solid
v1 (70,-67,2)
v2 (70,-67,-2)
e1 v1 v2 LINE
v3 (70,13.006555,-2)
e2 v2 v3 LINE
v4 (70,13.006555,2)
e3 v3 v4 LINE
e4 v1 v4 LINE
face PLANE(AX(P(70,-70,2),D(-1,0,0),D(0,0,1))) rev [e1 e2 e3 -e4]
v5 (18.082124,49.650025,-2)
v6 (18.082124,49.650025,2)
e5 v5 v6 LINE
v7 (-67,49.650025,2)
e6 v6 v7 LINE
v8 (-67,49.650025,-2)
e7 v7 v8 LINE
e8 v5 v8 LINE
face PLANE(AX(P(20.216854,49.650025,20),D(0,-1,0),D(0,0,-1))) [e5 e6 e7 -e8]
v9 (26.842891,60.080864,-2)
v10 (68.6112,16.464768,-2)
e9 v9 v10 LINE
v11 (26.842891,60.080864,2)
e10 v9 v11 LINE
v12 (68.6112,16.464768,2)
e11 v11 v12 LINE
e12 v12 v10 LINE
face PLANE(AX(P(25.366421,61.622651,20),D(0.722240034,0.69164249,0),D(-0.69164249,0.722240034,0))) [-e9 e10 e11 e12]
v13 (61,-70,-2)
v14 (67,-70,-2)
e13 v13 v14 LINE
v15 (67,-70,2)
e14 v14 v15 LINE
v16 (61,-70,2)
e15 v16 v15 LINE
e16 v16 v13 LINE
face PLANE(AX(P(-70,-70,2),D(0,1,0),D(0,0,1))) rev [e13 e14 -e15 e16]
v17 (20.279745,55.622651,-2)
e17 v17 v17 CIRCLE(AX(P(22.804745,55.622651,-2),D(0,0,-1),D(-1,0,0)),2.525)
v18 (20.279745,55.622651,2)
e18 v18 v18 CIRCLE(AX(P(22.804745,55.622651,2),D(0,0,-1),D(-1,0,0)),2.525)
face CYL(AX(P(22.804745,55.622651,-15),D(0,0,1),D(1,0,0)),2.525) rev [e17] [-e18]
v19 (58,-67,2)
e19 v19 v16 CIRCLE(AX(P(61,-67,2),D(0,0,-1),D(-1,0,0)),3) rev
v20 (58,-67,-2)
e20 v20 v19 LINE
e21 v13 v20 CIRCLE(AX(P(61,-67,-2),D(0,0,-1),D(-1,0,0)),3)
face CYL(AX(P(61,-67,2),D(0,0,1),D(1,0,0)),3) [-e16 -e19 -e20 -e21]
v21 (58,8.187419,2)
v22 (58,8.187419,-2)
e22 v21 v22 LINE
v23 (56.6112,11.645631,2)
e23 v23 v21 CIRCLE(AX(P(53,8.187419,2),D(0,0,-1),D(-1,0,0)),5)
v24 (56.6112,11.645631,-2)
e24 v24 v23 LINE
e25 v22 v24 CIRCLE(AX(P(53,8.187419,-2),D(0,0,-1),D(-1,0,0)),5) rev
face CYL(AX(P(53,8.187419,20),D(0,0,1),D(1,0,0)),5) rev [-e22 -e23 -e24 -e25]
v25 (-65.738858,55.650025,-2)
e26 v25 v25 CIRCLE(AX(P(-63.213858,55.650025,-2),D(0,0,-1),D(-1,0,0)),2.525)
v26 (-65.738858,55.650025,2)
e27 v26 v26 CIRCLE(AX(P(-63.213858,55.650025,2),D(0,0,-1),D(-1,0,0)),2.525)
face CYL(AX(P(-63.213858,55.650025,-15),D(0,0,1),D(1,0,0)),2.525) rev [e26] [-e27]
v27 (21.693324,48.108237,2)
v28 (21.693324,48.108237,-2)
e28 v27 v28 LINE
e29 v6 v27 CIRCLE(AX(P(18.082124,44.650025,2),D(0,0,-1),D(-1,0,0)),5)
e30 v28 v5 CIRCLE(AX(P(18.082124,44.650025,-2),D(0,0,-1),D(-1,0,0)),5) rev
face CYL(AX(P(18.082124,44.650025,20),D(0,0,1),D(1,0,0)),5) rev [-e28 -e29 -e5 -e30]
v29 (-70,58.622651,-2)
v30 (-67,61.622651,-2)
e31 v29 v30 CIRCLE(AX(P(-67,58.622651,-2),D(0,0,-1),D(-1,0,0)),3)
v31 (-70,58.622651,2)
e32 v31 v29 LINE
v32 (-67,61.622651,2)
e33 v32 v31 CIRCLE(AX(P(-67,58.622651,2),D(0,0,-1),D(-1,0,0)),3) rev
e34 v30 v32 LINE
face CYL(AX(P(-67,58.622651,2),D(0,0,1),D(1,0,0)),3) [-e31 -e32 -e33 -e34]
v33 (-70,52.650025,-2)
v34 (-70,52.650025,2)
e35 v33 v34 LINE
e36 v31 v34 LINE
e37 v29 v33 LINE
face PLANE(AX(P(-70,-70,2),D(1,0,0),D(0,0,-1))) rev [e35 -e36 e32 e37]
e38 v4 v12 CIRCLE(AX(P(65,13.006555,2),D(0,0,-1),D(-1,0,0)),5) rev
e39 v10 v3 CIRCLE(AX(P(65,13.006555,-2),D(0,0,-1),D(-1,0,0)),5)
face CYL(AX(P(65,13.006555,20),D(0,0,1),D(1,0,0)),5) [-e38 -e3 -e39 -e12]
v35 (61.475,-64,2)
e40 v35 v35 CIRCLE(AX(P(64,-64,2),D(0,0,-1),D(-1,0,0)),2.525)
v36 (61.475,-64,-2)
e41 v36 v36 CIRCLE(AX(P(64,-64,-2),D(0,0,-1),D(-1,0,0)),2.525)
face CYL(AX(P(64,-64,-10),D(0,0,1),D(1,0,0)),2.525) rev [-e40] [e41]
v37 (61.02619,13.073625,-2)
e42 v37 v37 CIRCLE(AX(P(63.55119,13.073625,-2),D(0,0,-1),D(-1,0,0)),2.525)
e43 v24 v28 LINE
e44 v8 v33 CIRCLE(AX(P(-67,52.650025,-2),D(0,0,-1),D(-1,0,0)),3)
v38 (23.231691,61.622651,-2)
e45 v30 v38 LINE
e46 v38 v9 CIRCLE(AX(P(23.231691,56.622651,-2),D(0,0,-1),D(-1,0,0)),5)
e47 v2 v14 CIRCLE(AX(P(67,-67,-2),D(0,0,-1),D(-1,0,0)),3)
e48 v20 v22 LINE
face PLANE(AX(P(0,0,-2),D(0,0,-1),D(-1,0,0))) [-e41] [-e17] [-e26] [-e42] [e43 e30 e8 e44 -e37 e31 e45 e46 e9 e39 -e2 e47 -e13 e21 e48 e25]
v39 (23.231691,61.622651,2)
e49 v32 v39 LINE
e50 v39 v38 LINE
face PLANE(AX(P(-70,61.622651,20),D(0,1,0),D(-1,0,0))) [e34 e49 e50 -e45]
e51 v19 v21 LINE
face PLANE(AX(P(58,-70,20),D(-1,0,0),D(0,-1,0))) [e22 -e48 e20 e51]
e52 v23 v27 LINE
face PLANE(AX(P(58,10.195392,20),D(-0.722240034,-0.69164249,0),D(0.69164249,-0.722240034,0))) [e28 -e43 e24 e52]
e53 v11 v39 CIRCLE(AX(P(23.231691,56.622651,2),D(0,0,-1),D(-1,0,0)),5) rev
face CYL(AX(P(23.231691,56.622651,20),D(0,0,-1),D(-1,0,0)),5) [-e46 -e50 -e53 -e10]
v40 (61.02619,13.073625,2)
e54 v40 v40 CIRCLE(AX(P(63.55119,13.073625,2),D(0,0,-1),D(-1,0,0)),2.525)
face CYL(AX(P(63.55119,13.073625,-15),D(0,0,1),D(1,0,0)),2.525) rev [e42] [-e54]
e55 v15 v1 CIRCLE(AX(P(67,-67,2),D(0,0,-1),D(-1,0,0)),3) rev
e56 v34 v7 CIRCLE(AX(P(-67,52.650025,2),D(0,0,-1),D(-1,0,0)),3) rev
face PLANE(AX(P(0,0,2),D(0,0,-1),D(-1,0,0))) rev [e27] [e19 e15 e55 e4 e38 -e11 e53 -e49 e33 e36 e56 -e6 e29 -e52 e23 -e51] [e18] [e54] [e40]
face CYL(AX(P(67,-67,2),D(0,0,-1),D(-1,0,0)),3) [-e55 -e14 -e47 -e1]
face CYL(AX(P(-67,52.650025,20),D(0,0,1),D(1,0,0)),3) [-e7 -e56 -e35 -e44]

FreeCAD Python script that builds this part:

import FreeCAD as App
import Part
import Sketcher
from FreeCAD import Vector
Q = App.Units.Quantity


def edges_at(feature, points):
    """Names of the edges that pass closest to the given points."""
    edges = feature.Shape.Edges
    near = lambda p: min(range(len(edges)), key=lambda i: edges[i].distToShape(Part.Vertex(*p))[0])
    return sorted({f"Edge{near(p) + 1}" for p in points})

doc = App.newDocument("Part")
body = doc.addObject("PartDesign::Body", "Body")

# Sketch on XY plane
sketch1 = body.newObject("Sketcher::SketchObject", "Sketch")
sketch1.AttachmentSupport = (doc.getObject("XY_Plane"), [""])
sketch1.MapMode = "FlatFace"
sketch1.addGeometry(Part.LineSegment(Vector(-70, 70, 0), Vector(-70, -70, 0)), False)
sketch1.addGeometry(Part.LineSegment(Vector(-70, -70, 0), Vector(70, -70, 0)), False)
sketch1.addGeometry(Part.LineSegment(Vector(70, -70, 0), Vector(70, 70, 0)), False)
sketch1.addGeometry(Part.LineSegment(Vector(70, 70, 0), Vector(-70, 70, 0)), False)
sketch1.addConstraint(Sketcher.Constraint("Coincident", 0, 2, 1, 1))
sketch1.addConstraint(Sketcher.Constraint("Coincident", 1, 2, 2, 1))
sketch1.addConstraint(Sketcher.Constraint("Coincident", 2, 2, 3, 1))
sketch1.addConstraint(Sketcher.Constraint("Coincident", 3, 2, 0, 1))
sketch1.addConstraint(Sketcher.Constraint("Vertical", 0))
sketch1.addConstraint(Sketcher.Constraint("Horizontal", 1))
sketch1.addConstraint(Sketcher.Constraint("Vertical", 2))
sketch1.addConstraint(Sketcher.Constraint("Horizontal", 3))
sketch1.addConstraint(Sketcher.Constraint("Symmetric", 0, 2, 2, 2, -1, 1))
sketch1.addConstraint(Sketcher.Constraint("Equal", 3, 0))
sketch1.addConstraint(Sketcher.Constraint("DistanceX", 1, 1, 1, 2, Q("140 mm")))
pad1 = body.newObject("PartDesign::Pad", "Pad")
pad1.Profile = sketch1
pad1.Length = 4
pad1.Midplane = True

# Sketch on XY plane
sketch2 = body.newObject("Sketcher::SketchObject", "Sketch001")
sketch2.AttachmentSupport = (doc.getObject("XY_Plane"), [""])
sketch2.MapMode = "FlatFace"
sketch2.AttachmentOffset = App.Placement(Vector(0, 0, 2), App.Rotation())
sketch2.addGeometry(Part.Circle(Vector(64, -64, 0), Vector(0, 0, 1), 2.525), False)
sketch2.addConstraint(Sketcher.Constraint("Diameter", 0, Q("5.05 mm")))
sketch2.addConstraint(Sketcher.Constraint("DistanceX", -1, 1, 0, 3, Q("64 mm")))
sketch2.addConstraint(Sketcher.Constraint("DistanceY", 0, 3, -1, 1, Q("64 mm")))
pocket1 = body.newObject("PartDesign::Pocket", "Pocket")
pocket1.Profile = sketch2
pocket1.Length = 24
pocket1.Midplane = True

# Sketch on XY plane
sketch3 = body.newObject("Sketcher::SketchObject", "Sketch002")
sketch3.AttachmentSupport = (doc.getObject("XY_Plane"), [""])
sketch3.MapMode = "FlatFace"
sketch3.AttachmentOffset = App.Placement(Vector(0, 0, 2), App.Rotation())
sketch3.addGeometry(Part.Circle(Vector(63.55119, 13.073625, 0), Vector(0, 0, 1), 2.525), False)
sketch3.addGeometry(Part.Circle(Vector(22.804745, 55.622651, 0), Vector(0, 0, 1), 2.525), False)
sketch3.addGeometry(Part.Circle(Vector(-63.213858, 55.650025, 0), Vector(0, 0, 1), 2.525), False)
sketch3.addConstraint(Sketcher.Constraint("Equal", 0, 1))
sketch3.addConstraint(Sketcher.Constraint("Equal", 1, 2))
sketch3.addConstraint(Sketcher.Constraint("Diameter", 0, Q("5.05 mm")))
sketch3.addConstraint(Sketcher.Constraint("DistanceY", 0, 3, 2, 3, Q("42.576399 mm")))
sketch3.addConstraint(Sketcher.Constraint("DistanceX", -1, 1, 0, 3, Q("63.55119 mm")))
sketch3.addConstraint(Sketcher.Constraint("DistanceY", -1, 1, 1, 3, Q("55.622651 mm")))
sketch3.addConstraint(Sketcher.Constraint("DistanceX", 2, 3, -1, 1, Q("63.213858 mm")))
sketch3.addConstraint(Sketcher.Constraint("DistanceY", -1, 1, 0, 3, Q("13.073625 mm")))
sketch3.addConstraint(Sketcher.Constraint("DistanceX", -1, 1, 1, 3, Q("22.804745 mm")))
pocket2 = body.newObject("PartDesign::Pocket", "Pocket001")
pocket2.Profile = sketch3
pocket2.Length = 34
pocket2.Midplane = True

# Sketch on XY plane
sketch4 = body.newObject("Sketcher::SketchObject", "Sketch003")
sketch4.AttachmentSupport = (doc.getObject("XY_Plane"), [""])
sketch4.MapMode = "FlatFace"
sketch4.AttachmentOffset = App.Placement(Vector(0, 0, -2), App.Rotation())
sketch4.addGeometry(Part.LineSegment(Vector(90.803, 90.803, 0), Vector(90.803, -90.803, 0)), False)
sketch4.addGeometry(Part.LineSegment(Vector(90.803, -90.803, 0), Vector(-90.803, -90.803, 0)), False)
sketch4.addGeometry(Part.LineSegment(Vector(-90.803, -90.803, 0), Vector(-90.803, 90.803, 0)), False)
sketch4.addGeometry(Part.LineSegment(Vector(-90.803, 90.803, 0), Vector(90.803, 90.803, 0)), False)
sketch4.addGeometry(Part.LineSegment(Vector(58, 10.195392, 0), Vector(58, -70, 0)), False)
sketch4.addGeometry(Part.LineSegment(Vector(58, -70, 0), Vector(70, -70, 0)), False)
sketch4.addGeometry(Part.LineSegment(Vector(70, -70, 0), Vector(70, 15.014529, 0)), False)
sketch4.addGeometry(Part.LineSegment(Vector(70, 15.014529, 0), Vector(25.366421, 61.622651, 0)), False)
sketch4.addGeometry(Part.LineSegment(Vector(25.366421, 61.622651, 0), Vector(-70, 61.622651, 0)), False)
sketch4.addGeometry(Part.LineSegment(Vector(-70, 61.622651, 0), Vector(-70, 49.650025, 0)), False)
sketch4.addGeometry(Part.LineSegment(Vector(-70, 49.650025, 0), Vector(20.216854, 49.650025, 0)), False)
sketch4.addGeometry(Part.LineSegment(Vector(20.216854, 49.650025, 0), Vector(58, 10.195392, 0)), False)
sketch4.addConstraint(Sketcher.Constraint("Coincident", 0, 2, 1, 1))
sketch4.addConstraint(Sketcher.Constraint("Coincident", 1, 2, 2, 1))
sketch4.addConstraint(Sketcher.Constraint("Coincident", 2, 2, 3, 1))
sketch4.addConstraint(Sketcher.Constraint("Coincident", 3, 2, 0, 1))
sketch4.addConstraint(Sketcher.Constraint("Coincident", 4, 2, 5, 1))
sketch4.addConstraint(Sketcher.Constraint("Coincident", 5, 2, 6, 1))
sketch4.addConstraint(Sketcher.Constraint("Coincident", 6, 2, 7, 1))
sketch4.addConstraint(Sketcher.Constraint("Coincident", 7, 2, 8, 1))
sketch4.addConstraint(Sketcher.Constraint("Coincident", 8, 2, 9, 1))
sketch4.addConstraint(Sketcher.Constraint("Coincident", 9, 2, 10, 1))
sketch4.addConstraint(Sketcher.Constraint("Coincident", 10, 2, 11, 1))
sketch4.addConstraint(Sketcher.Constraint("Coincident", 11, 2, 4, 1))
sketch4.addConstraint(Sketcher.Constraint("Vertical", 0))
sketch4.addConstraint(Sketcher.Constraint("Horizontal", 1))
sketch4.addConstraint(Sketcher.Constraint("Vertical", 2))
sketch4.addConstraint(Sketcher.Constraint("Horizontal", 3))
sketch4.addConstraint(Sketcher.Constraint("Vertical", 4))
sketch4.addConstraint(Sketcher.Constraint("Horizontal", 5))
sketch4.addConstraint(Sketcher.Constraint("Vertical", 6))
sketch4.addConstraint(Sketcher.Constraint("Horizontal", 8))
sketch4.addConstraint(Sketcher.Constraint("Vertical", 9))
sketch4.addConstraint(Sketcher.Constraint("Horizontal", 10))
sketch4.addConstraint(Sketcher.Constraint("Symmetric", 0, 2, 2, 2, -1, 1))
sketch4.addConstraint(Sketcher.Constraint("Parallel", 7, 11))
sketch4.addConstraint(Sketcher.Constraint("Equal", 3, 0))
sketch4.addConstraint(Sketcher.Constraint("DistanceX", 5, 1, 5, 2, Q("12 mm")))
sketch4.addConstraint(Sketcher.Constraint("DistanceX", -1, 1, 4, 2, Q("58 mm")))
sketch4.addConstraint(Sketcher.Constraint("DistanceY", 4, 2, -1, 1, Q("70 mm")))
sketch4.addConstraint(Sketcher.Constraint("DistanceX", 8, 2, -1, 1, Q("70 mm")))
sketch4.addConstraint(Sketcher.Constraint("DistanceX", 1, 2, 1, 1, Q("181.606 mm")))
sketch4.addConstraint(Sketcher.Constraint("DistanceX", 8, 2, 8, 1, Q("95.366421 mm")))
sketch4.addConstraint(Sketcher.Constraint("DistanceY", 6, 1, 6, 2, Q("85.014529 mm")))
sketch4.addConstraint(Sketcher.Constraint("Distance", 7, Q("64.532732 mm")))
sketch4.addConstraint(Sketcher.Constraint("DistanceX", 10, 1, 10, 2, Q("90.216854 mm")))
sketch4.addConstraint(Sketcher.Constraint("DistanceY", 4, 2, 4, 1, Q("80.195392 mm")))
pocket3 = body.newObject("PartDesign::Pocket", "Pocket002")
pocket3.Profile = sketch4
pocket3.Length = 44
pocket3.Midplane = True
doc.recompute()

fillet = body.newObject("PartDesign::Fillet", "Fillet")
fillet.Base = (pocket3, edges_at(pocket3, [(58, -70, 0), (70, -70, 0)]))
fillet.Radius = 3
doc.recompute()

fillet2 = body.newObject("PartDesign::Fillet", "Fillet001")
fillet2.Base = (fillet, edges_at(fillet, [(-70, 61.623, 0), (-70, 49.65, 0)]))
fillet2.Radius = 3
doc.recompute()

fillet3 = body.newObject("PartDesign::Fillet", "Fillet002")
fillet3.Base = (fillet2, edges_at(fillet2, [
    (70, 15.015, 0),
    (25.366, 61.623, 0),
    (20.217, 49.65, 0),
    (58, 10.195, 0),
]))
fillet3.Radius = 5

doc.recompute()
